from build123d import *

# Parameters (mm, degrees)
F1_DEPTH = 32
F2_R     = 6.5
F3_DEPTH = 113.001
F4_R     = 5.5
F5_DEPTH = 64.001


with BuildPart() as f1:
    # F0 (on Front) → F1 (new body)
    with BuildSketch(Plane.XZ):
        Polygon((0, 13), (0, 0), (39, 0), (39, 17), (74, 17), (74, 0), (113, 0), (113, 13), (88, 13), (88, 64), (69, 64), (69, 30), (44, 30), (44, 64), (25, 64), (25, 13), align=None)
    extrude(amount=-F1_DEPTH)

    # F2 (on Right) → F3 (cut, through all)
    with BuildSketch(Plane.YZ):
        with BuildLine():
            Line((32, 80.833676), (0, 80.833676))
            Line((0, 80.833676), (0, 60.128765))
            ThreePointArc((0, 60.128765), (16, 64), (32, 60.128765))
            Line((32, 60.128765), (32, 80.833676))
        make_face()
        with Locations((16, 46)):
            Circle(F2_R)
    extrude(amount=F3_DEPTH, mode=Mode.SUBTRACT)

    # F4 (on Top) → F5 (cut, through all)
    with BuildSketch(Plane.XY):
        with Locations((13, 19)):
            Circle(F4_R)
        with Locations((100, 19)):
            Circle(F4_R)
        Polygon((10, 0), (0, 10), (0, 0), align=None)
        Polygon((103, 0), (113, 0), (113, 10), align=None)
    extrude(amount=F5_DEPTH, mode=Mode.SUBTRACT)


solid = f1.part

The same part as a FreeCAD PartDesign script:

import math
import FreeCAD as App
import Part
import Sketcher
from FreeCAD import Vector

doc = App.newDocument("Part")
body = doc.addObject("PartDesign::Body", "Body")

# Sketch on XZ plane
sketch1 = body.newObject("Sketcher::SketchObject", "Sketch")
sketch1.AttachmentSupport = (doc.getObject("XZ_Plane"), [""])
sketch1.MapMode = "FlatFace"
sketch1.addGeometry([
    Part.LineSegment(Vector(0, 13, 0), Vector(0, 0, 0)),  # 0
    Part.LineSegment(Vector(0, 0, 0), Vector(39, 0, 0)),  # 1
    Part.LineSegment(Vector(39, 0, 0), Vector(39, 17, 0)),  # 2
    Part.LineSegment(Vector(39, 17, 0), Vector(74, 17, 0)),  # 3
    Part.LineSegment(Vector(74, 17, 0), Vector(74, 0, 0)),  # 4
    Part.LineSegment(Vector(74, 0, 0), Vector(113, 0, 0)),  # 5
    Part.LineSegment(Vector(113, 0, 0), Vector(113, 13, 0)),  # 6
    Part.LineSegment(Vector(113, 13, 0), Vector(88, 13, 0)),  # 7
    Part.LineSegment(Vector(88, 13, 0), Vector(88, 64, 0)),  # 8
    Part.LineSegment(Vector(88, 64, 0), Vector(69, 64, 0)),  # 9
    Part.LineSegment(Vector(69, 64, 0), Vector(69, 30, 0)),  # 10
    Part.LineSegment(Vector(69, 30, 0), Vector(44, 30, 0)),  # 11
    Part.LineSegment(Vector(44, 30, 0), Vector(44, 64, 0)),  # 12
    Part.LineSegment(Vector(44, 64, 0), Vector(25, 64, 0)),  # 13
    Part.LineSegment(Vector(25, 64, 0), Vector(25, 13, 0)),  # 14
    Part.LineSegment(Vector(25, 13, 0), Vector(0, 13, 0)),  # 15
], False)
sketch1.addConstraint([
    Sketcher.Constraint("Coincident", 0, 2, 1, 1),
    Sketcher.Constraint("Coincident", 1, 2, 2, 1),
    Sketcher.Constraint("Coincident", 2, 2, 3, 1),
    Sketcher.Constraint("Coincident", 3, 2, 4, 1),
    Sketcher.Constraint("Coincident", 4, 2, 5, 1),
    Sketcher.Constraint("Coincident", 5, 2, 6, 1),
    Sketcher.Constraint("Coincident", 6, 2, 7, 1),
    Sketcher.Constraint("Coincident", 7, 2, 8, 1),
    Sketcher.Constraint("Coincident", 8, 2, 9, 1),
    Sketcher.Constraint("Coincident", 9, 2, 10, 1),
    Sketcher.Constraint("Coincident", 10, 2, 11, 1),
    Sketcher.Constraint("Coincident", 11, 2, 12, 1),
    Sketcher.Constraint("Coincident", 12, 2, 13, 1),
    Sketcher.Constraint("Coincident", 13, 2, 14, 1),
    Sketcher.Constraint("Coincident", 14, 2, 15, 1),
    Sketcher.Constraint("Coincident", 15, 2, 0, 1),
    Sketcher.Constraint("Vertical", 0),
    Sketcher.Constraint("Horizontal", 1),
    Sketcher.Constraint("Vertical", 2),
    Sketcher.Constraint("Horizontal", 3),
    Sketcher.Constraint("Vertical", 4),
    Sketcher.Constraint("Horizontal", 5),
    Sketcher.Constraint("Vertical", 6),
    Sketcher.Constraint("Horizontal", 7),
    Sketcher.Constraint("Vertical", 8),
    Sketcher.Constraint("Horizontal", 9),
    Sketcher.Constraint("Vertical", 10),
    Sketcher.Constraint("Horizontal", 11),
    Sketcher.Constraint("Vertical", 12),
    Sketcher.Constraint("Horizontal", 13),
    Sketcher.Constraint("Vertical", 14),
    Sketcher.Constraint("Horizontal", 15),
    Sketcher.Constraint("Coincident", 0, 2, -1, 1),
    Sketcher.Constraint("PointOnObject", 4, 2, -1),
    Sketcher.Constraint("Horizontal", 9, 2, 12, 2),
    Sketcher.Constraint("Horizontal", 7, 2, 14, 2),
    Sketcher.Constraint("Equal", 1, 5),
    Sketcher.Constraint("Equal", 7, 11),
    Sketcher.Constraint("Equal", 9, 13),
    Sketcher.Constraint("Equal", 11, 15),
    Sketcher.Constraint("DistanceX", 1, 1, 1, 2, 39.0),
    Sketcher.Constraint("DistanceX", 3, 1, 3, 2, 35.0),
    Sketcher.Constraint("DistanceX", 7, 2, 7, 1, 25.0),
    Sketcher.Constraint("DistanceY", 0, 2, 0, 1, 13.0),
    Sketcher.Constraint("DistanceY", 2, 1, 2, 2, 17.0),
    Sketcher.Constraint("DistanceY", 8, 1, 8, 2, 51.0),
    Sketcher.Constraint("DistanceY", 10, 2, 10, 1, 34.0),
])
pad1 = body.newObject("PartDesign::Pad", "Pad")
pad1.Profile = sketch1
pad1.Length = 32
pad1.Reversed = True

# Sketch on YZ plane
sketch2 = body.newObject("Sketcher::SketchObject", "Sketch001")
sketch2.AttachmentSupport = (doc.getObject("YZ_Plane"), [""])
sketch2.MapMode = "FlatFace"
sketch2.addGeometry([
    Part.LineSegment(Vector(32, 81, 0), Vector(0, 81, 0)),  # 0
    Part.LineSegment(Vector(0, 81, 0), Vector(0, 60, 0)),  # 1
    Part.ArcOfCircle(Part.Circle(Vector(16, 29, 0), Vector(0, 0, 1), 35), math.radians(63), math.radians(117)),  # 2
    Part.LineSegment(Vector(32, 60, 0), Vector(32, 81, 0)),  # 3
    Part.Circle(Vector(16, 46, 0), Vector(0, 0, 1), 6),  # 4
], False)
sketch2.addConstraint([
    Sketcher.Constraint("Coincident", 0, 2, 1, 1),
    Sketcher.Constraint("Coincident", 1, 2, 2, 2),
    Sketcher.Constraint("Coincident", 2, 1, 3, 1),
    Sketcher.Constraint("Coincident", 3, 2, 0, 1),
    Sketcher.Constraint("Horizontal", 0),
    Sketcher.Constraint("Vertical", 1),
    Sketcher.Constraint("Vertical", 3),
    Sketcher.Constraint("PointOnObject", 0, 2, -2),
    Sketcher.Constraint("Horizontal", 1, 2, 2, 1),
    Sketcher.Constraint("Vertical", 2, 3, 4, 3),
    Sketcher.Constraint("Diameter", 4, 13.0),
    Sketcher.Constraint("Radius", 2, 35.000001),
    Sketcher.Constraint("DistanceX", 0, 2, 0, 1, 32.0),
    Sketcher.Constraint("DistanceY", -1, 1, 2, 3, 28.999999),
    Sketcher.Constraint("DistanceY", -1, 1, 4, 3, 46.0),
    Sketcher.Constraint("DistanceY", 1, 2, 1, 1, 20.704911),
])
pocket1 = body.newObject("PartDesign::Pocket", "Pocket")
pocket1.Profile = sketch2
pocket1.Type = "ThroughAll"
pocket1.Reversed = True

# Sketch on XY plane
sketch3 = body.newObject("Sketcher::SketchObject", "Sketch002")
sketch3.AttachmentSupport = (doc.getObject("XY_Plane"), [""])
sketch3.MapMode = "FlatFace"
sketch3.addGeometry([
    Part.Circle(Vector(13, 19, 0), Vector(0, 0, 1), 6),  # 0
    Part.Circle(Vector(100, 19, 0), Vector(0, 0, 1), 6),  # 1
    Part.LineSegment(Vector(10, 0, 0), Vector(0, 10, 0)),  # 2
    Part.LineSegment(Vector(0, 10, 0), Vector(0, 0, 0)),  # 3
    Part.LineSegment(Vector(0, 0, 0), Vector(10, 0, 0)),  # 4
    Part.LineSegment(Vector(103, 0, 0), Vector(113, 0, 0)),  # 5
    Part.LineSegment(Vector(113, 0, 0), Vector(113, 10, 0)),  # 6
    Part.LineSegment(Vector(113, 10, 0), Vector(103, 0, 0)),  # 7
], False)
sketch3.addConstraint([
    Sketcher.Constraint("Coincident", 2, 2, 3, 1),
    Sketcher.Constraint("Coincident", 3, 2, 4, 1),
    Sketcher.Constraint("Coincident", 4, 2, 2, 1),
    Sketcher.Constraint("Coincident", 5, 2, 6, 1),
    Sketcher.Constraint("Coincident", 6, 2, 7, 1),
    Sketcher.Constraint("Coincident", 7, 2, 5, 1),
    Sketcher.Constraint("Vertical", 3),
    Sketcher.Constraint("Horizontal", 4),
    Sketcher.Constraint("Horizontal", 5),
    Sketcher.Constraint("Vertical", 6),
    Sketcher.Constraint("Coincident", 3, 2, -1, 1),
    Sketcher.Constraint("Equal", 0, 1),
    Sketcher.Constraint("PointOnObject", 5, 2, -1),
    Sketcher.Constraint("Perpendicular", 2, 7),
    Sketcher.Constraint("Horizontal", 0, 3, 1, 3),
    Sketcher.Constraint("Horizontal", 2, 2, 6, 2),
    Sketcher.Constraint("Equal", 4, 5),
    Sketcher.Constraint("Diameter", 0, 11.0),
    Sketcher.Constraint("DistanceX", 4, 1, 4, 2, 10.0),
    Sketcher.Constraint("DistanceX", -1, 1, 0, 3, 13.0),
    Sketcher.Constraint("DistanceY", -1, 1, 0, 3, 19.0),
    Sketcher.Constraint("DistanceX", -1, 1, 1, 3, 100.0),
    Sketcher.Constraint("DistanceX", -1, 1, 5, 2, 113.0),
])
pocket2 = body.newObject("PartDesign::Pocket", "Pocket001")
pocket2.Profile = sketch3
pocket2.Type = "ThroughAll"
pocket2.Reversed = True

doc.recompute()
